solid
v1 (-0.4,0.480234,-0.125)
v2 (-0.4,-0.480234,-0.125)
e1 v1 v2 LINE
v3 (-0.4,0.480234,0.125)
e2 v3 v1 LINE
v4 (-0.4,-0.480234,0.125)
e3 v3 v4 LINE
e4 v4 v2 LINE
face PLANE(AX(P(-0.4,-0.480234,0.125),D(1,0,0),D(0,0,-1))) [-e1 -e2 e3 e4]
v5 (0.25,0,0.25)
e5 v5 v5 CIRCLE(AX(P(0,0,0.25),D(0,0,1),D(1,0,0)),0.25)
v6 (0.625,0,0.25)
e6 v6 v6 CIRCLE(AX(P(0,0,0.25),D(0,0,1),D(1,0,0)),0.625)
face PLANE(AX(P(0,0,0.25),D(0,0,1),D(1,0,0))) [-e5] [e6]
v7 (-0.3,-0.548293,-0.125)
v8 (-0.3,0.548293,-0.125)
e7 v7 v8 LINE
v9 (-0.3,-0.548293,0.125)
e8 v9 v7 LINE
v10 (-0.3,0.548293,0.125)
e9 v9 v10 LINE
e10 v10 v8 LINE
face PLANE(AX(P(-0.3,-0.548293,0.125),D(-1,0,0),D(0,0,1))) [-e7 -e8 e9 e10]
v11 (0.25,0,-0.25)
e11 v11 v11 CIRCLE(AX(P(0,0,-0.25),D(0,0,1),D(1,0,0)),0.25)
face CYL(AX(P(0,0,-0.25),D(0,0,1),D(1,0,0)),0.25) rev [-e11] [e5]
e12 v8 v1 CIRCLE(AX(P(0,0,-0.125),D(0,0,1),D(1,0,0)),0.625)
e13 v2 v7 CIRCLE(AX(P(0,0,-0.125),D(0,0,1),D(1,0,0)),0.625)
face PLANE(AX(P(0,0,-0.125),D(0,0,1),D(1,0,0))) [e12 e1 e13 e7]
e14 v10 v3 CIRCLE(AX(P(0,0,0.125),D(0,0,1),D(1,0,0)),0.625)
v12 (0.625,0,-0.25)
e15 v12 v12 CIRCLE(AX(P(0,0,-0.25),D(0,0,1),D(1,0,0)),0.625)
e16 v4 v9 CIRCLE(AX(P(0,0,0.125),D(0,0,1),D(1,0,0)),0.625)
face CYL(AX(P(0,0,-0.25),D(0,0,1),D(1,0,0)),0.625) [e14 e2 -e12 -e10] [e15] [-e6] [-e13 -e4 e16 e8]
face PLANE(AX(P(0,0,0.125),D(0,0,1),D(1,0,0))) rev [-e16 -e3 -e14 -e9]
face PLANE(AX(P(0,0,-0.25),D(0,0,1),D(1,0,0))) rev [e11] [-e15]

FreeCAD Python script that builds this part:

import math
import FreeCAD as App
import Part
import Sketcher

doc = App.newDocument("Part")
body = doc.addObject("PartDesign::Body", "Body")

# Sketch on XY plane
sketch1 = body.newObject("Sketcher::SketchObject", "Sketch")
sketch1.AttachmentSupport = (doc.getObject("XY_Plane"), [""])
sketch1.MapMode = "FlatFace"
sketch1.addGeometry(Part.Circle(App.Vector(0, 0, 0), App.Vector(0, 0, 1), 0.625), False)
sketch1.addGeometry(Part.Circle(App.Vector(0, 0, 0), App.Vector(0, 0, 1), 0.25), False)
sketch1.addConstraint(Sketcher.Constraint("Coincident", 0, 3, -1, 1))
sketch1.addConstraint(Sketcher.Constraint("Coincident", 1, 3, -1, 1))
sketch1.addConstraint(Sketcher.Constraint("Diameter", 1, 0.5))
sketch1.addConstraint(Sketcher.Constraint("Diameter", 0, 1.25))
pad1 = body.newObject("PartDesign::Pad", "Pad")
pad1.Profile = sketch1
pad1.Type = "TwoLengths"
pad1.Length = 0.25
pad1.Length2 = 0.25

# Sketch on XY plane
sketch2 = body.newObject("Sketcher::SketchObject", "Sketch001")
sketch2.AttachmentSupport = (doc.getObject("XY_Plane"), [""])
sketch2.MapMode = "FlatFace"
sketch2.addGeometry(Part.LineSegment(App.Vector(-0.3, -0.548293, 0), App.Vector(-0.3, 0.548293, 0)), False)
sketch2.addGeometry(Part.ArcOfCircle(Part.Circle(App.Vector(0, 0, 0), App.Vector(0, 0, 1), 0.625), math.radians(118.685402), math.radians(129.791819)), False)
sketch2.addGeometry(Part.LineSegment(App.Vector(-0.4, 0.480234, 0), App.Vector(-0.4, -0.480234, 0)), False)
sketch2.addGeometry(Part.ArcOfCircle(Part.Circle(App.Vector(0, 0, 0), App.Vector(0, 0, 1), 0.625), math.radians(-129.791819), math.radians(-118.685402)), False)
sketch2.addConstraint(Sketcher.Constraint("Coincident", 0, 2, 1, 1))
sketch2.addConstraint(Sketcher.Constraint("Coincident", 1, 2, 2, 1))
sketch2.addConstraint(Sketcher.Constraint("Coincident", 2, 2, 3, 1))
sketch2.addConstraint(Sketcher.Constraint("Coincident", 3, 2, 0, 1))
sketch2.addConstraint(Sketcher.Constraint("Vertical", 0))
sketch2.addConstraint(Sketcher.Constraint("Vertical", 2))
sketch2.addConstraint(Sketcher.Constraint("Coincident", 1, 3, -1, 1))
sketch2.addConstraint(Sketcher.Constraint("Coincident", 3, 3, -1, 1))
sketch2.addConstraint(Sketcher.Constraint("Equal", 1, 3))
sketch2.addConstraint(Sketcher.Constraint("Radius", 1, 0.625))
sketch2.addConstraint(Sketcher.Constraint("DistanceX", 0, 2, -1, 1, 0.3))
sketch2.addConstraint(Sketcher.Constraint("DistanceX", 1, 2, -1, 1, 0.4))
pocket1 = body.newObject("PartDesign::Pocket", "Pocket")
pocket1.Profile = sketch2
pocket1.Type = "TwoLengths"
pocket1.Length = 0.125
pocket1.Length2 = 0.125
pocket1.Reversed = True

doc.recompute()
